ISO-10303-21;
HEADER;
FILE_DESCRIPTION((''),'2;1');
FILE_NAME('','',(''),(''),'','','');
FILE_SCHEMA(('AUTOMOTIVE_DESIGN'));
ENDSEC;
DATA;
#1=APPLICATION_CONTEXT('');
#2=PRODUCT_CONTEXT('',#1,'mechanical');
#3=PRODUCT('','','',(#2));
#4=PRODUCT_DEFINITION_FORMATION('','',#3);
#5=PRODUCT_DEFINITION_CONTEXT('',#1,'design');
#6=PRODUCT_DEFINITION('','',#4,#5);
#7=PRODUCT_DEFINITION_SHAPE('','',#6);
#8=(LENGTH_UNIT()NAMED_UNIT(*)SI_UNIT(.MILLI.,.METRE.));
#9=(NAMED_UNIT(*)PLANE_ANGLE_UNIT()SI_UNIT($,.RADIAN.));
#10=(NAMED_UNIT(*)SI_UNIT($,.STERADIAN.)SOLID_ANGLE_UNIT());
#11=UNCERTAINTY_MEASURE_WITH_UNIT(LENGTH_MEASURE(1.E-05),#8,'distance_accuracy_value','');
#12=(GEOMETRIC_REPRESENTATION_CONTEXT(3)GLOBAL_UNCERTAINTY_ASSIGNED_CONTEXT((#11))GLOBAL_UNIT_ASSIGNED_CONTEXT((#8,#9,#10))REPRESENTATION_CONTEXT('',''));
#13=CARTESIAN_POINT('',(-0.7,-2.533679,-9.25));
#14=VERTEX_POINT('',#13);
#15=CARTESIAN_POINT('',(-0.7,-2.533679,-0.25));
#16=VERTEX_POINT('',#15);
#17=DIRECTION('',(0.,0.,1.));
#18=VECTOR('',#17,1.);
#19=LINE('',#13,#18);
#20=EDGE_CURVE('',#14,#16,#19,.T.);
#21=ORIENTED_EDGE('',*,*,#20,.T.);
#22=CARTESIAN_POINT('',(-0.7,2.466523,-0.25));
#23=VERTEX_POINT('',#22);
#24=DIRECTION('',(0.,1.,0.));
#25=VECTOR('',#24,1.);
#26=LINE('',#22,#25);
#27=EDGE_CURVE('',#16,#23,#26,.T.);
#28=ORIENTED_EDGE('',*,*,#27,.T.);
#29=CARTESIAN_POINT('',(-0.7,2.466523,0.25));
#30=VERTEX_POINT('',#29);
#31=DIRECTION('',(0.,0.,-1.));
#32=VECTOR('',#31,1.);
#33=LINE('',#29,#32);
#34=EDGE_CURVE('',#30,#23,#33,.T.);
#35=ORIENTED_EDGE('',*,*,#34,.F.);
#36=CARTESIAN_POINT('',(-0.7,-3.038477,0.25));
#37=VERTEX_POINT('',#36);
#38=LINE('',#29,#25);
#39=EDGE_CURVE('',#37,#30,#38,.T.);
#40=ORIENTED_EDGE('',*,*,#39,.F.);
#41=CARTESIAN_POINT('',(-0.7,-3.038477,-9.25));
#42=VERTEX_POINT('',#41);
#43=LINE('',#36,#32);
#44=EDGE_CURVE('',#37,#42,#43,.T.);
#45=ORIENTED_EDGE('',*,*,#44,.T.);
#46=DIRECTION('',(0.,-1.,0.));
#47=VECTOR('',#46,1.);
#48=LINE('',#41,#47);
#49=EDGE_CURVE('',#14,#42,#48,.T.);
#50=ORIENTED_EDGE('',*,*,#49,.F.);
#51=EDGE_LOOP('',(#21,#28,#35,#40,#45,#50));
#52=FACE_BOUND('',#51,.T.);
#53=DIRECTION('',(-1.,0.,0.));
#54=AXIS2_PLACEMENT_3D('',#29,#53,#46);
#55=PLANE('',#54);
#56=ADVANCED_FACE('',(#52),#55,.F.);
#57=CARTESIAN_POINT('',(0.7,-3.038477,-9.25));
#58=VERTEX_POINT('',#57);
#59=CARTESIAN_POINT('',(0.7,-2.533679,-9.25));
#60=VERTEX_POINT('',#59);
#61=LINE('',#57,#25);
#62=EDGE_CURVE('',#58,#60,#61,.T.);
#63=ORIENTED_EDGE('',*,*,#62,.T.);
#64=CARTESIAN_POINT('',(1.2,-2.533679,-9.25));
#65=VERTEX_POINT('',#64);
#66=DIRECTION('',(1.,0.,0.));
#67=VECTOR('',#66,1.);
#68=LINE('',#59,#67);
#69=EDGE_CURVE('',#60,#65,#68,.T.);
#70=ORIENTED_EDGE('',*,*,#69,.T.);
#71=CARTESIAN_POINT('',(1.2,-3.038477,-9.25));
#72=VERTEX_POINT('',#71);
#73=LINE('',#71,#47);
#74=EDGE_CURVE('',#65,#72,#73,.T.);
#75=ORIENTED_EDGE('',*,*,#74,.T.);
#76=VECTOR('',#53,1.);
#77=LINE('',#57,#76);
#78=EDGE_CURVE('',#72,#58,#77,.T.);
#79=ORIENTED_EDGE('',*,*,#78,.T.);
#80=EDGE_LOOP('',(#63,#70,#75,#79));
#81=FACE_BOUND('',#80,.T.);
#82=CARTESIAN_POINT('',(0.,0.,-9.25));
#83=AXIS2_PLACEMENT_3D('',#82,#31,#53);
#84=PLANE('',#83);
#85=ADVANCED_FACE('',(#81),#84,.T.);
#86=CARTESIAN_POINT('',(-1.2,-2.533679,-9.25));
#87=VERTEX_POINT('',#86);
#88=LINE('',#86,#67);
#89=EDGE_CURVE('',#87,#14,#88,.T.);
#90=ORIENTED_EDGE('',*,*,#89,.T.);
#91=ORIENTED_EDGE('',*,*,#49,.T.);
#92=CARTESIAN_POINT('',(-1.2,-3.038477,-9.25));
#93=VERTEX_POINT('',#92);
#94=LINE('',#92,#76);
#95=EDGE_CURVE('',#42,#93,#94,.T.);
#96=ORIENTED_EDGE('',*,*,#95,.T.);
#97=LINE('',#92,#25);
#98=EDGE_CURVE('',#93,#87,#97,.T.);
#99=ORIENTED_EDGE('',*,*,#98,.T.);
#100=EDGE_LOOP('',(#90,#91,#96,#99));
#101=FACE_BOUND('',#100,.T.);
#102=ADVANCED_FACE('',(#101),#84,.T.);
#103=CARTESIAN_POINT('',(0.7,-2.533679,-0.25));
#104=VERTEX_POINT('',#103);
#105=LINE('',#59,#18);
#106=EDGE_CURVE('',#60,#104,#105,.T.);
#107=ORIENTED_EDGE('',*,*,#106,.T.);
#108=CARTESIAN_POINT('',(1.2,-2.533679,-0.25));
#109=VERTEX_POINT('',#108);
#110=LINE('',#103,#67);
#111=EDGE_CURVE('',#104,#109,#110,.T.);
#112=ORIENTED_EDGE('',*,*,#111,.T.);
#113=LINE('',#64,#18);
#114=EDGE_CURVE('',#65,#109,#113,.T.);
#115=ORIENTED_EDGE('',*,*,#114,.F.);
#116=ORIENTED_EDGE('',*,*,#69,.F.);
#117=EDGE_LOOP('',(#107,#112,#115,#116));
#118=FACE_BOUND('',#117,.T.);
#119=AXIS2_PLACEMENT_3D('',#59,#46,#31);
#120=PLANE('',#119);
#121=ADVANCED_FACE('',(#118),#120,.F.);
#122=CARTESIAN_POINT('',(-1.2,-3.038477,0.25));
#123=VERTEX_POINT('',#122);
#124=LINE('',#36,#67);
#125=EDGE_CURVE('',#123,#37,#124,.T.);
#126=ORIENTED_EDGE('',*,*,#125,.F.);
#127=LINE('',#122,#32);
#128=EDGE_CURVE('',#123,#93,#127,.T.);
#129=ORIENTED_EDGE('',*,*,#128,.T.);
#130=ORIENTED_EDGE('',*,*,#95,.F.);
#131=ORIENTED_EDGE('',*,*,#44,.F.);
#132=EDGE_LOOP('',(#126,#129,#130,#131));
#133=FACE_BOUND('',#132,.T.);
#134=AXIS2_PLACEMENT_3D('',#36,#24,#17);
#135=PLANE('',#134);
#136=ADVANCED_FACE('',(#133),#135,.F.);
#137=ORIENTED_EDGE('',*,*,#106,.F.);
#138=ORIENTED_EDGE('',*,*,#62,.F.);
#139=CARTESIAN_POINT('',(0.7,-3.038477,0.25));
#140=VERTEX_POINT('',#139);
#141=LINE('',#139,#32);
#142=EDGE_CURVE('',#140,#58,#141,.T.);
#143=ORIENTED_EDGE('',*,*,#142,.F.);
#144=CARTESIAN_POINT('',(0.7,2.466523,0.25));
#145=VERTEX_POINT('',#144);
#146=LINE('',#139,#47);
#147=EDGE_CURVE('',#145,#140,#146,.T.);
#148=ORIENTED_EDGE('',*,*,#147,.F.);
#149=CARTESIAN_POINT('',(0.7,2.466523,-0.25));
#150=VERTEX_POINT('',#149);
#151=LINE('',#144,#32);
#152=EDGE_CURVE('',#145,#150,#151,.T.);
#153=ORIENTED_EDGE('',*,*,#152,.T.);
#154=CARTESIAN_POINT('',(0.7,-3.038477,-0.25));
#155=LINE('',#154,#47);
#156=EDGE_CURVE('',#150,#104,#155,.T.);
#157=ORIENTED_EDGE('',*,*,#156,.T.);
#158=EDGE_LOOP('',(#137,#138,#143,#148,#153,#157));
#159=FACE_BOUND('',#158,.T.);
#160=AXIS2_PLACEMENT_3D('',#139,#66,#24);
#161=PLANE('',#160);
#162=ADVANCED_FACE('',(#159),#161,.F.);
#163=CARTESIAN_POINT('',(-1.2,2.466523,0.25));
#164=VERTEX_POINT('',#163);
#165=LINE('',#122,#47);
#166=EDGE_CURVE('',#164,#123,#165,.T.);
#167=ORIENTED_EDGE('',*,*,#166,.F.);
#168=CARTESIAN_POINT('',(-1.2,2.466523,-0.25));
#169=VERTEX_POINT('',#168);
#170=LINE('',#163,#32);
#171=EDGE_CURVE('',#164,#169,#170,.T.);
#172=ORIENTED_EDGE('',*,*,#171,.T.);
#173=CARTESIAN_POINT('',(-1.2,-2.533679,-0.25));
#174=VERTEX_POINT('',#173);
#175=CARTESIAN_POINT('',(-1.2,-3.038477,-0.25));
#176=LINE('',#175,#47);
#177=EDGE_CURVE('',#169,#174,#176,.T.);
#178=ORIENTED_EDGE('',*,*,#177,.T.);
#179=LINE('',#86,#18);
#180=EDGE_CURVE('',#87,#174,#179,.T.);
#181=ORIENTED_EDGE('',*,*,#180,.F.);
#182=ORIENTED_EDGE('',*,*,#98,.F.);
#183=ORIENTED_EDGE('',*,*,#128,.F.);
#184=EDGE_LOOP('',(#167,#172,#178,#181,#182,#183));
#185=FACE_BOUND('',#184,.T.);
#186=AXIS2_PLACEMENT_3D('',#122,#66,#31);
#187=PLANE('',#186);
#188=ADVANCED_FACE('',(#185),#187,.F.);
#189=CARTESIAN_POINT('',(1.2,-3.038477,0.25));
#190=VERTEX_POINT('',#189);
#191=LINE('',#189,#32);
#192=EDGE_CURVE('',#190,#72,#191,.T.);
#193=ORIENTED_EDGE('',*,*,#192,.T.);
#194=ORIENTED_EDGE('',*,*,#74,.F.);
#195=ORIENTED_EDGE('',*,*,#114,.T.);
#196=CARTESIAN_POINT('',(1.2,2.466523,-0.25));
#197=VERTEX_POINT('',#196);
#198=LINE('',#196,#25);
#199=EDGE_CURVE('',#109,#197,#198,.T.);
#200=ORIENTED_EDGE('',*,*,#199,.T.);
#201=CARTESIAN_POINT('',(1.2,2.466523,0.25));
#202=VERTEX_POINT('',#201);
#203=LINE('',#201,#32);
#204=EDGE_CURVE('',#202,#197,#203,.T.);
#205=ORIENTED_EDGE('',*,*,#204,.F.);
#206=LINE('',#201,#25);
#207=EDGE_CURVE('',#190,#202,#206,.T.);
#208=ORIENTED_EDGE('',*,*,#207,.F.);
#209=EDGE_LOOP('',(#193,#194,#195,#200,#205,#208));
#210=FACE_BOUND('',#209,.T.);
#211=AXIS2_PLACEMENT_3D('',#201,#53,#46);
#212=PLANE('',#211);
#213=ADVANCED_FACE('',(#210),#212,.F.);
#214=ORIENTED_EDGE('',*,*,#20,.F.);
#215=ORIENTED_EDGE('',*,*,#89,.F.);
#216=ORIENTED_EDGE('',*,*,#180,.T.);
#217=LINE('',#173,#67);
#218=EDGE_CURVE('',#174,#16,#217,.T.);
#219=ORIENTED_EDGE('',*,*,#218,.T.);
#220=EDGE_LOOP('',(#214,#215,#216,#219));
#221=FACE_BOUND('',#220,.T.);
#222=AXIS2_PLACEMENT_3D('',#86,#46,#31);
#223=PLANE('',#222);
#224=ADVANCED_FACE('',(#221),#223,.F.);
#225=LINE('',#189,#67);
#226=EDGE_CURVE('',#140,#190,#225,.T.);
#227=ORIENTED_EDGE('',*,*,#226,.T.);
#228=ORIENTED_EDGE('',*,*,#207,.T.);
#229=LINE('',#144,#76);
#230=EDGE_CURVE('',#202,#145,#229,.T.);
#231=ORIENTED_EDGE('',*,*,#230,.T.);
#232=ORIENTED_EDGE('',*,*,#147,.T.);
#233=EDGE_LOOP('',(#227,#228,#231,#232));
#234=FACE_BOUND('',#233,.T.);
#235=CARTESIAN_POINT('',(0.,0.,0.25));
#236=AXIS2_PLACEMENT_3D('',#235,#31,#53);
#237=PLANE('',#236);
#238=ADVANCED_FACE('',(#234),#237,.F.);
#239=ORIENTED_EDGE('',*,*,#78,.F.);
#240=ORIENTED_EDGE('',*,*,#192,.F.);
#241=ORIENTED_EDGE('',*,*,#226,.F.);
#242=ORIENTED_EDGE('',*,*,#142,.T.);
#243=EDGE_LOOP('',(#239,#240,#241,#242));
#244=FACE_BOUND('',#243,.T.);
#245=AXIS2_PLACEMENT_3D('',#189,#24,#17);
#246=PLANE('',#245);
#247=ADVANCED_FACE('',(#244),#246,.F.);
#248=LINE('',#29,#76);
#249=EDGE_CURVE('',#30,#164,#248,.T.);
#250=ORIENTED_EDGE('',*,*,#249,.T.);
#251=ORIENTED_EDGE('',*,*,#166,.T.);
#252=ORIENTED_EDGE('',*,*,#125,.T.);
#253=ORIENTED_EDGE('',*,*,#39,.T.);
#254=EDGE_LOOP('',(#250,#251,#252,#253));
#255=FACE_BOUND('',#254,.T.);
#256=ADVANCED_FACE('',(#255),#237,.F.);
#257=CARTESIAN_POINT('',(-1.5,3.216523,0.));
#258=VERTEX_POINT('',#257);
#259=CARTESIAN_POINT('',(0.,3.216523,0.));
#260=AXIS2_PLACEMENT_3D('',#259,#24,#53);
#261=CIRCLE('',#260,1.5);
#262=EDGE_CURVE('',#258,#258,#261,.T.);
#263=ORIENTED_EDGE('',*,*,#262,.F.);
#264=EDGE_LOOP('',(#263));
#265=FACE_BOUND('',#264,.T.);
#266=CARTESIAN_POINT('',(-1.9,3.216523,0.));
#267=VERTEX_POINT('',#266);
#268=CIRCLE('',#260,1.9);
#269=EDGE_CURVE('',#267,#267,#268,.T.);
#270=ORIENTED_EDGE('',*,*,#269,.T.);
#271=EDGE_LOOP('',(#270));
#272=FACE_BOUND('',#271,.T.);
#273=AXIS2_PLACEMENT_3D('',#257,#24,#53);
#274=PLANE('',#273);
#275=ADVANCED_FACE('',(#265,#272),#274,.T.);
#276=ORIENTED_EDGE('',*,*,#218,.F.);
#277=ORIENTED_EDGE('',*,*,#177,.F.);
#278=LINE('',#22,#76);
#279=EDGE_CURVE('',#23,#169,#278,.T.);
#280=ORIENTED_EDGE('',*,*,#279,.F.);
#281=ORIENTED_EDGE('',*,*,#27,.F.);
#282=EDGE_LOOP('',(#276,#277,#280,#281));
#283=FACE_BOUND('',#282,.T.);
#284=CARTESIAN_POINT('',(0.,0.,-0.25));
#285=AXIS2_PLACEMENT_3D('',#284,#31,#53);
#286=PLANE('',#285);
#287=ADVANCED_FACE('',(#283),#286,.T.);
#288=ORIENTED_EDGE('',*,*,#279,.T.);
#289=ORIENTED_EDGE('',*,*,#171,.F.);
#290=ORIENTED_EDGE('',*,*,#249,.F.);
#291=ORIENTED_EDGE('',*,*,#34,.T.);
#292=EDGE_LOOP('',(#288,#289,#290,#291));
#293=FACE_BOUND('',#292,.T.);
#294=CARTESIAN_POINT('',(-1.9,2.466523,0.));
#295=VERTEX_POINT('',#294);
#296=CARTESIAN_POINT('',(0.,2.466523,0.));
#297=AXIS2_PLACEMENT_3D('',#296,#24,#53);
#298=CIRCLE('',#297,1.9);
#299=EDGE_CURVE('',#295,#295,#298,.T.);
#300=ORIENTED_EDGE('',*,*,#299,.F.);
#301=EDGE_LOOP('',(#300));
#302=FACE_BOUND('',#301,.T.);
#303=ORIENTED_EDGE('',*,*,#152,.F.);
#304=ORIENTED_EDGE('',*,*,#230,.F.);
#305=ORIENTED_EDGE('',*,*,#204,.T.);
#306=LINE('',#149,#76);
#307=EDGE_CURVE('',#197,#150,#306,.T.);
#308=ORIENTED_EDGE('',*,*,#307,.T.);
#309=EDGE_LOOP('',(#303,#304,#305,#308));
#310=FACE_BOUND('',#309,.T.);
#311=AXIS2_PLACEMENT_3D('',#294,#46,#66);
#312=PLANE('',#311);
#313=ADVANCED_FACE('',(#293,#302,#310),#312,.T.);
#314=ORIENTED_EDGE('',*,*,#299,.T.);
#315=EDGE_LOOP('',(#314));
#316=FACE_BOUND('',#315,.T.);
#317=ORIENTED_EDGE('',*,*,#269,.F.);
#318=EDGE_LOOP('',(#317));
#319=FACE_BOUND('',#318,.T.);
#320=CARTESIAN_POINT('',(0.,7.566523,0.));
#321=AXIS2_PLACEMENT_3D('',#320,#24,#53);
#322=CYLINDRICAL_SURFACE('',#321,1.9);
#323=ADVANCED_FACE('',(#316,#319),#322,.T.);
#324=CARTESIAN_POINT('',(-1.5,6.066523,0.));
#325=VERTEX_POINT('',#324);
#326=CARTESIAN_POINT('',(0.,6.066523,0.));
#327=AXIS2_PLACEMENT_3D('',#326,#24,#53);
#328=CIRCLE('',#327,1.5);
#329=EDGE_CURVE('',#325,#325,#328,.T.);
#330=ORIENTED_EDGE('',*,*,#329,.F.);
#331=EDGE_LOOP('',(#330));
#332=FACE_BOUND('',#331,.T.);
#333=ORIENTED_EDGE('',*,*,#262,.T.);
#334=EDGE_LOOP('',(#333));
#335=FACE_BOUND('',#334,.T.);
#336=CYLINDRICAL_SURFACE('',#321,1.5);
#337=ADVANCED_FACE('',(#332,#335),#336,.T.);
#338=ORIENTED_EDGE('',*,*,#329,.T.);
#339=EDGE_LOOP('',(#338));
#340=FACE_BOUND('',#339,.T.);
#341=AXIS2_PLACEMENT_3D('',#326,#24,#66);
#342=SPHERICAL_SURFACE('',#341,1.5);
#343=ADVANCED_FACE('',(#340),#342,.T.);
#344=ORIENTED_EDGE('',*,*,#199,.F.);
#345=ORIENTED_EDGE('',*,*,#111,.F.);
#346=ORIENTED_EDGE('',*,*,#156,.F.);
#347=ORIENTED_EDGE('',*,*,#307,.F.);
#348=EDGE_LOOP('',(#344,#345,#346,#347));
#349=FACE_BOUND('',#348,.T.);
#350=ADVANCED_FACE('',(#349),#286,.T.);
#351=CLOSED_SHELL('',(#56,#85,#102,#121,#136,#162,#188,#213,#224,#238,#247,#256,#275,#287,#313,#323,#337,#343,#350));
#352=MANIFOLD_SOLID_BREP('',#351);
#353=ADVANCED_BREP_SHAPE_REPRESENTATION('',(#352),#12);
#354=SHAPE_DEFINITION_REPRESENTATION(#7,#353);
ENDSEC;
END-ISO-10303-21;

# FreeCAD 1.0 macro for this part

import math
import FreeCAD as App
import Part
import Sketcher

V = App.Vector
Q = App.Units.Quantity

doc = App.newDocument("Part")
body = doc.addObject("PartDesign::Body", "Body")

sketch1 = body.newObject("Sketcher::SketchObject", "Sketch")
sketch1.AttachmentSupport = (doc.getObject("XY_Plane"), [""])
sketch1.MapMode = "FlatFace"
sketch1.addGeometry(Part.LineSegment(V(-1.5, 6.07, 0), V(-1.5, 3.22, 0)), False)
sketch1.addGeometry(Part.LineSegment(V(-1.5, 3.22, 0), V(-1.9, 3.22, 0)), False)
sketch1.addGeometry(Part.LineSegment(V(-1.9, 3.22, 0), V(-1.9, 2.47, 0)), False)
sketch1.addGeometry(Part.LineSegment(V(-1.9, 2.47, 0), V(0, 2.47, 0)), False)
sketch1.addGeometry(Part.LineSegment(V(0, 2.47, 0), V(0, 7.57, 0)), False)
sketch1.addGeometry(Part.ArcOfCircle(Part.Circle(V(0, 6.07, 0), V(0, 0, 1), 1.5), math.radians(90), math.radians(180)), False)
sketch1.addConstraint(Sketcher.Constraint("Coincident", 0, 2, 1, 1))
sketch1.addConstraint(Sketcher.Constraint("Coincident", 1, 2, 2, 1))
sketch1.addConstraint(Sketcher.Constraint("Coincident", 2, 2, 3, 1))
sketch1.addConstraint(Sketcher.Constraint("Coincident", 3, 2, 4, 1))
sketch1.addConstraint(Sketcher.Constraint("Coincident", 4, 2, 5, 1))
sketch1.addConstraint(Sketcher.Constraint("Tangent", 5, 2, 0, 1))
sketch1.addConstraint(Sketcher.Constraint("Vertical", 0))
sketch1.addConstraint(Sketcher.Constraint("Horizontal", 1))
sketch1.addConstraint(Sketcher.Constraint("Vertical", 2))
sketch1.addConstraint(Sketcher.Constraint("Horizontal", 3))
sketch1.addConstraint(Sketcher.Constraint("Vertical", 4))
sketch1.addConstraint(Sketcher.Constraint("PointOnObject", 5, 3, -2))
sketch1.addConstraint(Sketcher.Constraint("PointOnObject", 3, 2, -2))
sketch1.addConstraint(Sketcher.Constraint("Radius", 5, Q("1.5 mm")))
sketch1.addConstraint(Sketcher.Constraint("DistanceX", 1, 2, 1, 1, Q("0.4 mm")))
sketch1.addConstraint(Sketcher.Constraint("DistanceY", 4, 1, 4, 2, Q("5.1 mm")))
sketch1.addConstraint(Sketcher.Constraint("DistanceY", 0, 2, 0, 1, Q("2.85 mm")))
sketch1.addConstraint(Sketcher.Constraint("DistanceY", -1, 1, 5, 3, Q("6.066523 mm")))
revolution = body.newObject("PartDesign::Revolution", "Revolution")
revolution.Profile = sketch1
revolution.ReferenceAxis = (sketch1, ["V_Axis"])
revolution.Angle = 360

sketch2 = body.newObject("Sketcher::SketchObject", "Sketch001")
sketch2.AttachmentSupport = (doc.getObject("XY_Plane"), [""])
sketch2.MapMode = "FlatFace"
sketch2.addGeometry(Part.LineSegment(V(0.7, 2.5, 0), V(0.7, -3, 0)), False)
sketch2.addGeometry(Part.LineSegment(V(0.7, -3, 0), V(1.2, -3, 0)), False)
sketch2.addGeometry(Part.LineSegment(V(1.2, -3, 0), V(1.2, 2.5, 0)), False)
sketch2.addGeometry(Part.LineSegment(V(1.2, 2.5, 0), V(0.7, 2.5, 0)), False)
sketch2.addGeometry(Part.LineSegment(V(-1.2, 2.5, 0), V(-1.2, -3, 0)), False)
sketch2.addGeometry(Part.LineSegment(V(-1.2, -3, 0), V(-0.7, -3, 0)), False)
sketch2.addGeometry(Part.LineSegment(V(-0.7, -3, 0), V(-0.7, 2.5, 0)), False)
sketch2.addGeometry(Part.LineSegment(V(-0.7, 2.5, 0), V(-1.2, 2.5, 0)), False)
sketch2.addConstraint(Sketcher.Constraint("Coincident", 0, 2, 1, 1))
sketch2.addConstraint(Sketcher.Constraint("Coincident", 1, 2, 2, 1))
sketch2.addConstraint(Sketcher.Constraint("Coincident", 2, 2, 3, 1))
sketch2.addConstraint(Sketcher.Constraint("Coincident", 3, 2, 0, 1))
sketch2.addConstraint(Sketcher.Constraint("Coincident", 4, 2, 5, 1))
sketch2.addConstraint(Sketcher.Constraint("Coincident", 5, 2, 6, 1))
sketch2.addConstraint(Sketcher.Constraint("Coincident", 6, 2, 7, 1))
sketch2.addConstraint(Sketcher.Constraint("Coincident", 7, 2, 4, 1))
sketch2.addConstraint(Sketcher.Constraint("Vertical", 0))
sketch2.addConstraint(Sketcher.Constraint("Horizontal", 1))
sketch2.addConstraint(Sketcher.Constraint("Vertical", 2))
sketch2.addConstraint(Sketcher.Constraint("Horizontal", 3))
sketch2.addConstraint(Sketcher.Constraint("Vertical", 4))
sketch2.addConstraint(Sketcher.Constraint("Horizontal", 5))
sketch2.addConstraint(Sketcher.Constraint("Vertical", 6))
sketch2.addConstraint(Sketcher.Constraint("Horizontal", 7))
sketch2.addConstraint(Sketcher.Constraint("Symmetric", 1, 2, 4, 2, -2))
sketch2.addConstraint(Sketcher.Constraint("Symmetric", 3, 2, 6, 2, -2))
sketch2.addConstraint(Sketcher.Constraint("DistanceX", 1, 1, 1, 2, Q("0.5 mm")))
sketch2.addConstraint(Sketcher.Constraint("DistanceX", -1, 1, 0, 2, Q("0.7 mm")))
sketch2.addConstraint(Sketcher.Constraint("DistanceY", 0, 2, 0, 1, Q("5.505 mm")))
sketch2.addConstraint(Sketcher.Constraint("DistanceY", 0, 2, -1, 1, Q("3.038477 mm")))
pad1 = body.newObject("PartDesign::Pad", "Pad")
pad1.Profile = sketch2
pad1.Length = 0.5
pad1.Midplane = True

sketch3 = body.newObject("Sketcher::SketchObject", "Sketch002")
sketch3.AttachmentSupport = (doc.getObject("XY_Plane"), [""])
sketch3.MapMode = "FlatFace"
sketch3.AttachmentOffset = App.Placement(V(0, 0, -0.25), App.Rotation())
sketch3.addGeometry(Part.LineSegment(V(-0.7, -2.5, 0), V(-0.7, -3, 0)), False)
sketch3.addGeometry(Part.LineSegment(V(-0.7, -3, 0), V(-1.2, -3, 0)), False)
sketch3.addGeometry(Part.LineSegment(V(-1.2, -3, 0), V(-1.2, -2.5, 0)), False)
sketch3.addGeometry(Part.LineSegment(V(-1.2, -2.5, 0), V(-0.7, -2.5, 0)), False)
sketch3.addGeometry(Part.LineSegment(V(1.2, -2.5, 0), V(1.2, -3, 0)), False)
sketch3.addGeometry(Part.LineSegment(V(1.2, -3, 0), V(0.7, -3, 0)), False)
sketch3.addGeometry(Part.LineSegment(V(0.7, -3, 0), V(0.7, -2.5, 0)), False)
sketch3.addGeometry(Part.LineSegment(V(0.7, -2.5, 0), V(1.2, -2.5, 0)), False)
sketch3.addConstraint(Sketcher.Constraint("Coincident", 0, 2, 1, 1))
sketch3.addConstraint(Sketcher.Constraint("Coincident", 1, 2, 2, 1))
sketch3.addConstraint(Sketcher.Constraint("Coincident", 2, 2, 3, 1))
sketch3.addConstraint(Sketcher.Constraint("Coincident", 3, 2, 0, 1))
sketch3.addConstraint(Sketcher.Constraint("Coincident", 4, 2, 5, 1))
sketch3.addConstraint(Sketcher.Constraint("Coincident", 5, 2, 6, 1))
sketch3.addConstraint(Sketcher.Constraint("Coincident", 6, 2, 7, 1))
sketch3.addConstraint(Sketcher.Constraint("Coincident", 7, 2, 4, 1))
sketch3.addConstraint(Sketcher.Constraint("Vertical", 0))
sketch3.addConstraint(Sketcher.Constraint("Horizontal", 1))
sketch3.addConstraint(Sketcher.Constraint("Vertical", 2))
sketch3.addConstraint(Sketcher.Constraint("Horizontal", 3))
sketch3.addConstraint(Sketcher.Constraint("Vertical", 4))
sketch3.addConstraint(Sketcher.Constraint("Horizontal", 5))
sketch3.addConstraint(Sketcher.Constraint("Vertical", 6))
sketch3.addConstraint(Sketcher.Constraint("Horizontal", 7))
sketch3.addConstraint(Sketcher.Constraint("Symmetric", 1, 2, 4, 2, -2))
sketch3.addConstraint(Sketcher.Constraint("Symmetric", 3, 2, 6, 2, -2))
sketch3.addConstraint(Sketcher.Constraint("DistanceX", 1, 2, 1, 1, Q("0.5 mm")))
sketch3.addConstraint(Sketcher.Constraint("DistanceX", 0, 2, -1, 1, Q("0.7 mm")))
sketch3.addConstraint(Sketcher.Constraint("DistanceY", 0, 2, 0, 1, Q("0.504798 mm")))
sketch3.addConstraint(Sketcher.Constraint("DistanceY", 2, 2, -1, 1, Q("2.533679 mm")))
pad2 = body.newObject("PartDesign::Pad", "Pad001")
pad2.Profile = sketch3
pad2.Length = 9
pad2.Reversed = True

doc.recompute()
